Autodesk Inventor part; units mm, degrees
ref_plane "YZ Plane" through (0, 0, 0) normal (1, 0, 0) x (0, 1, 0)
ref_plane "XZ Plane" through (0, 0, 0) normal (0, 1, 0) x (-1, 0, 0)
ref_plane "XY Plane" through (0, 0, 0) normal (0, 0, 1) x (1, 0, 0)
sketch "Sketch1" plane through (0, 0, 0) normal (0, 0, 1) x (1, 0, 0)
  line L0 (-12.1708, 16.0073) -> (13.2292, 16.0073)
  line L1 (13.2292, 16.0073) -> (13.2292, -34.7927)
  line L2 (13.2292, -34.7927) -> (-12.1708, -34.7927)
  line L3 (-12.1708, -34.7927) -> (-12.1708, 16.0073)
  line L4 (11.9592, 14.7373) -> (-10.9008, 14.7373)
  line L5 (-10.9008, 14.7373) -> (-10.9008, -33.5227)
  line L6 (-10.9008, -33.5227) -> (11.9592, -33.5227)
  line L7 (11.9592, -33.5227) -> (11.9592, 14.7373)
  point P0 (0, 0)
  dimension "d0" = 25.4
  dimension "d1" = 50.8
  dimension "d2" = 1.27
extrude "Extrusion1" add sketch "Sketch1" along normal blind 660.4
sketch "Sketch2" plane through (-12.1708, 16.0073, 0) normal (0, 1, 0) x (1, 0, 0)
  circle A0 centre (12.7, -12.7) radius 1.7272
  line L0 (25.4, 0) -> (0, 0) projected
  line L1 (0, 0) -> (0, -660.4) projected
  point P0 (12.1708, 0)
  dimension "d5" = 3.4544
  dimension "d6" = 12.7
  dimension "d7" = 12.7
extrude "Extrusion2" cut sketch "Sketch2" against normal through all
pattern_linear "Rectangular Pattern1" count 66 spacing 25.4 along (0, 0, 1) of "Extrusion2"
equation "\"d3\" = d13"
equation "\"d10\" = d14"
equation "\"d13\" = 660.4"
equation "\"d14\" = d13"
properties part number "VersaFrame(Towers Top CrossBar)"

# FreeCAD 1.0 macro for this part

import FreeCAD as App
import Part
import Sketcher

V = App.Vector
Q = App.Units.Quantity


def add_polygon(sketch, points):
    """Adds a closed chain of lines whose ends are joined by coincident constraints."""
    first, n = sketch.GeometryCount, len(points)
    for a, b in zip(points, points[1:] + points[:1]):
        sketch.addGeometry(Part.LineSegment(App.Vector(*a, 0), App.Vector(*b, 0)), False)
    for i in range(n):
        sketch.addConstraint(Sketcher.Constraint("Coincident", first + i, 2, first + (i + 1) % n, 1))

doc = App.newDocument("Part")
body = doc.addObject("PartDesign::Body", "Body")

sketch1 = body.newObject("Sketcher::SketchObject", "Sketch")
sketch1.AttachmentSupport = (doc.getObject("XY_Plane"), [""])
sketch1.MapMode = "FlatFace"
add_polygon(sketch1, [(13, 16), (-12, 16), (-12, -35), (13, -35)])
add_polygon(sketch1, [(-11, 15), (12, 15), (12, -34), (-11, -34)])
sketch1.addConstraint(Sketcher.Constraint("Horizontal", 0))
sketch1.addConstraint(Sketcher.Constraint("Vertical", 1))
sketch1.addConstraint(Sketcher.Constraint("Horizontal", 2))
sketch1.addConstraint(Sketcher.Constraint("Vertical", 3))
sketch1.addConstraint(Sketcher.Constraint("Horizontal", 4))
sketch1.addConstraint(Sketcher.Constraint("Vertical", 5))
sketch1.addConstraint(Sketcher.Constraint("Horizontal", 6))
sketch1.addConstraint(Sketcher.Constraint("Vertical", 7))
sketch1.addConstraint(Sketcher.Constraint("DistanceX", 0, 2, 0, 1, Q("1 in")))
sketch1.addConstraint(Sketcher.Constraint("DistanceY", 1, 2, 1, 1, Q("2 in")))
sketch1.addConstraint(Sketcher.Constraint("DistanceX", 4, 2, 3, 2, Q("0.05 in")))
sketch1.addConstraint(Sketcher.Constraint("DistanceY", 4, 2, 3, 2, Q("0.05 in")))
sketch1.addConstraint(Sketcher.Constraint("DistanceY", 2, 2, 5, 2, Q("0.05 in")))
sketch1.addConstraint(Sketcher.Constraint("DistanceX", 1, 2, 6, 2, Q("0.05 in")))
sketch1.addConstraint(Sketcher.Constraint("DistanceY", -1, 1, 0, 2, Q("0.6302 in")))
sketch1.addConstraint(Sketcher.Constraint("DistanceX", 0, 2, -1, 1, Q("12.1708 mm")))
pad1 = body.newObject("PartDesign::Pad", "Pad")
pad1.Profile = sketch1
pad1.Length = Q("26 in")

sketch2 = body.newObject("Sketcher::SketchObject", "Sketch001")
sketch2.AttachmentSupport = (doc.getObject("XZ_Plane"), [""])
sketch2.MapMode = "FlatFace"
sketch2.AttachmentOffset = App.Placement(V(0, 0, -0.6302087 * 25.4), App.Rotation())
sketch2.addGeometry(Part.Circle(V(0.5, 12.7, 0), V(0, 0, 1), 1.7), False)
sketch2.addConstraint(Sketcher.Constraint("Diameter", 0, Q("0.136 in")))
sketch2.addConstraint(Sketcher.Constraint("DistanceY", -1, 1, 0, 3, Q("0.5 in")))
sketch2.addConstraint(Sketcher.Constraint("DistanceX", -1, 1, 0, 3, Q("0.5292 mm")))
pocket1 = body.newObject("PartDesign::Pocket", "Pocket")
pocket1.Profile = sketch2
pocket1.Type = "ThroughAll"
pocket1.Reversed = True
doc.recompute()

linearpattern = body.newObject("PartDesign::LinearPattern", "LinearPattern")
linearpattern.Originals = [pocket1]
linearpattern.Direction = (doc.getObject("Z_Axis"), [""])
linearpattern.Mode = "offset"
linearpattern.Offset = Q("1 in")
linearpattern.Occurrences = 66
body.Tip = linearpattern

doc.recompute()
